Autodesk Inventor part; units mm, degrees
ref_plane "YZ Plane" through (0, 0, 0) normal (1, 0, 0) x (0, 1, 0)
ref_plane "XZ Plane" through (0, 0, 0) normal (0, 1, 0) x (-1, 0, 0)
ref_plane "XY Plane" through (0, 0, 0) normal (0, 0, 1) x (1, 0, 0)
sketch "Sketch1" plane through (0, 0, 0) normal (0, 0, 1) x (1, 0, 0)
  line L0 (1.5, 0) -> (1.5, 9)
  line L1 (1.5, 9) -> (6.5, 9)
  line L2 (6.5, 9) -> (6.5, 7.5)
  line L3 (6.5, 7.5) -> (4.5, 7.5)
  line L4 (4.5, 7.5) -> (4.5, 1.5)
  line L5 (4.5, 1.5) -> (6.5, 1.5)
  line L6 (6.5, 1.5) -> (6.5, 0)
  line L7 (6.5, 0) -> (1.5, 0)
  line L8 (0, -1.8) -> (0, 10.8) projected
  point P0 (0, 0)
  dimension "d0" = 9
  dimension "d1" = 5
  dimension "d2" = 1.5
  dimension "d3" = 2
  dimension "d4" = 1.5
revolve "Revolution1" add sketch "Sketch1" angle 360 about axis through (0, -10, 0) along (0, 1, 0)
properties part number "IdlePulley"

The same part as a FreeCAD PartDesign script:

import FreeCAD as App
import Part
import Sketcher

V = App.Vector


def add_polygon(sketch, points):
    """Adds a closed chain of lines whose ends are joined by coincident constraints."""
    first, n = sketch.GeometryCount, len(points)
    for a, b in zip(points, points[1:] + points[:1]):
        sketch.addGeometry(Part.LineSegment(App.Vector(*a, 0), App.Vector(*b, 0)), False)
    for i in range(n):
        sketch.addConstraint(Sketcher.Constraint("Coincident", first + i, 2, first + (i + 1) % n, 1))

doc = App.newDocument("Part")
body = doc.addObject("PartDesign::Body", "Body")

sketch1 = doc.addObject("Sketcher::SketchObject", "Sketch")
body.addObject(sketch1)
sketch1.AttachmentSupport = (doc.XY_Plane, [""])
sketch1.MapMode = "FlatFace"
add_polygon(sketch1, [(1.5, 9), (1.5, 0), (6.5, 0), (6.5, 1.5), (4.5, 1.5), (4.5, 7.5), (6.5, 7.5), (6.5, 9)])
sketch1.addConstraint(Sketcher.Constraint("Vertical", 0))
sketch1.addConstraint(Sketcher.Constraint("Horizontal", 1))
sketch1.addConstraint(Sketcher.Constraint("Vertical", 2))
sketch1.addConstraint(Sketcher.Constraint("Horizontal", 3))
sketch1.addConstraint(Sketcher.Constraint("Vertical", 4))
sketch1.addConstraint(Sketcher.Constraint("Horizontal", 5))
sketch1.addConstraint(Sketcher.Constraint("Vertical", 6))
sketch1.addConstraint(Sketcher.Constraint("Horizontal", 7))
sketch1.addConstraint(Sketcher.Constraint("PointOnObject", 0, 2, -1))
sketch1.addConstraint(Sketcher.Constraint("Vertical", 2, 2, 5, 2))
sketch1.addConstraint(Sketcher.Constraint("Equal", 2, 6))
sketch1.addConstraint(Sketcher.Constraint("DistanceX", 1, 1, 1, 2, 5.0))
sketch1.addConstraint(Sketcher.Constraint("DistanceX", 3, 2, 3, 1, 2.0))
sketch1.addConstraint(Sketcher.Constraint("DistanceY", 0, 2, 0, 1, 9.0))
sketch1.addConstraint(Sketcher.Constraint("DistanceY", 2, 1, 2, 2, 1.5))
sketch1.addConstraint(Sketcher.Constraint("DistanceX", -1, 1, 0, 2, 1.5))
revolution = doc.addObject("PartDesign::Revolution", "Revolution")
body.addObject(revolution)
revolution.Profile = sketch1
revolution.ReferenceAxis = (sketch1, ["V_Axis"])
revolution.Angle = 360

doc.recompute()
